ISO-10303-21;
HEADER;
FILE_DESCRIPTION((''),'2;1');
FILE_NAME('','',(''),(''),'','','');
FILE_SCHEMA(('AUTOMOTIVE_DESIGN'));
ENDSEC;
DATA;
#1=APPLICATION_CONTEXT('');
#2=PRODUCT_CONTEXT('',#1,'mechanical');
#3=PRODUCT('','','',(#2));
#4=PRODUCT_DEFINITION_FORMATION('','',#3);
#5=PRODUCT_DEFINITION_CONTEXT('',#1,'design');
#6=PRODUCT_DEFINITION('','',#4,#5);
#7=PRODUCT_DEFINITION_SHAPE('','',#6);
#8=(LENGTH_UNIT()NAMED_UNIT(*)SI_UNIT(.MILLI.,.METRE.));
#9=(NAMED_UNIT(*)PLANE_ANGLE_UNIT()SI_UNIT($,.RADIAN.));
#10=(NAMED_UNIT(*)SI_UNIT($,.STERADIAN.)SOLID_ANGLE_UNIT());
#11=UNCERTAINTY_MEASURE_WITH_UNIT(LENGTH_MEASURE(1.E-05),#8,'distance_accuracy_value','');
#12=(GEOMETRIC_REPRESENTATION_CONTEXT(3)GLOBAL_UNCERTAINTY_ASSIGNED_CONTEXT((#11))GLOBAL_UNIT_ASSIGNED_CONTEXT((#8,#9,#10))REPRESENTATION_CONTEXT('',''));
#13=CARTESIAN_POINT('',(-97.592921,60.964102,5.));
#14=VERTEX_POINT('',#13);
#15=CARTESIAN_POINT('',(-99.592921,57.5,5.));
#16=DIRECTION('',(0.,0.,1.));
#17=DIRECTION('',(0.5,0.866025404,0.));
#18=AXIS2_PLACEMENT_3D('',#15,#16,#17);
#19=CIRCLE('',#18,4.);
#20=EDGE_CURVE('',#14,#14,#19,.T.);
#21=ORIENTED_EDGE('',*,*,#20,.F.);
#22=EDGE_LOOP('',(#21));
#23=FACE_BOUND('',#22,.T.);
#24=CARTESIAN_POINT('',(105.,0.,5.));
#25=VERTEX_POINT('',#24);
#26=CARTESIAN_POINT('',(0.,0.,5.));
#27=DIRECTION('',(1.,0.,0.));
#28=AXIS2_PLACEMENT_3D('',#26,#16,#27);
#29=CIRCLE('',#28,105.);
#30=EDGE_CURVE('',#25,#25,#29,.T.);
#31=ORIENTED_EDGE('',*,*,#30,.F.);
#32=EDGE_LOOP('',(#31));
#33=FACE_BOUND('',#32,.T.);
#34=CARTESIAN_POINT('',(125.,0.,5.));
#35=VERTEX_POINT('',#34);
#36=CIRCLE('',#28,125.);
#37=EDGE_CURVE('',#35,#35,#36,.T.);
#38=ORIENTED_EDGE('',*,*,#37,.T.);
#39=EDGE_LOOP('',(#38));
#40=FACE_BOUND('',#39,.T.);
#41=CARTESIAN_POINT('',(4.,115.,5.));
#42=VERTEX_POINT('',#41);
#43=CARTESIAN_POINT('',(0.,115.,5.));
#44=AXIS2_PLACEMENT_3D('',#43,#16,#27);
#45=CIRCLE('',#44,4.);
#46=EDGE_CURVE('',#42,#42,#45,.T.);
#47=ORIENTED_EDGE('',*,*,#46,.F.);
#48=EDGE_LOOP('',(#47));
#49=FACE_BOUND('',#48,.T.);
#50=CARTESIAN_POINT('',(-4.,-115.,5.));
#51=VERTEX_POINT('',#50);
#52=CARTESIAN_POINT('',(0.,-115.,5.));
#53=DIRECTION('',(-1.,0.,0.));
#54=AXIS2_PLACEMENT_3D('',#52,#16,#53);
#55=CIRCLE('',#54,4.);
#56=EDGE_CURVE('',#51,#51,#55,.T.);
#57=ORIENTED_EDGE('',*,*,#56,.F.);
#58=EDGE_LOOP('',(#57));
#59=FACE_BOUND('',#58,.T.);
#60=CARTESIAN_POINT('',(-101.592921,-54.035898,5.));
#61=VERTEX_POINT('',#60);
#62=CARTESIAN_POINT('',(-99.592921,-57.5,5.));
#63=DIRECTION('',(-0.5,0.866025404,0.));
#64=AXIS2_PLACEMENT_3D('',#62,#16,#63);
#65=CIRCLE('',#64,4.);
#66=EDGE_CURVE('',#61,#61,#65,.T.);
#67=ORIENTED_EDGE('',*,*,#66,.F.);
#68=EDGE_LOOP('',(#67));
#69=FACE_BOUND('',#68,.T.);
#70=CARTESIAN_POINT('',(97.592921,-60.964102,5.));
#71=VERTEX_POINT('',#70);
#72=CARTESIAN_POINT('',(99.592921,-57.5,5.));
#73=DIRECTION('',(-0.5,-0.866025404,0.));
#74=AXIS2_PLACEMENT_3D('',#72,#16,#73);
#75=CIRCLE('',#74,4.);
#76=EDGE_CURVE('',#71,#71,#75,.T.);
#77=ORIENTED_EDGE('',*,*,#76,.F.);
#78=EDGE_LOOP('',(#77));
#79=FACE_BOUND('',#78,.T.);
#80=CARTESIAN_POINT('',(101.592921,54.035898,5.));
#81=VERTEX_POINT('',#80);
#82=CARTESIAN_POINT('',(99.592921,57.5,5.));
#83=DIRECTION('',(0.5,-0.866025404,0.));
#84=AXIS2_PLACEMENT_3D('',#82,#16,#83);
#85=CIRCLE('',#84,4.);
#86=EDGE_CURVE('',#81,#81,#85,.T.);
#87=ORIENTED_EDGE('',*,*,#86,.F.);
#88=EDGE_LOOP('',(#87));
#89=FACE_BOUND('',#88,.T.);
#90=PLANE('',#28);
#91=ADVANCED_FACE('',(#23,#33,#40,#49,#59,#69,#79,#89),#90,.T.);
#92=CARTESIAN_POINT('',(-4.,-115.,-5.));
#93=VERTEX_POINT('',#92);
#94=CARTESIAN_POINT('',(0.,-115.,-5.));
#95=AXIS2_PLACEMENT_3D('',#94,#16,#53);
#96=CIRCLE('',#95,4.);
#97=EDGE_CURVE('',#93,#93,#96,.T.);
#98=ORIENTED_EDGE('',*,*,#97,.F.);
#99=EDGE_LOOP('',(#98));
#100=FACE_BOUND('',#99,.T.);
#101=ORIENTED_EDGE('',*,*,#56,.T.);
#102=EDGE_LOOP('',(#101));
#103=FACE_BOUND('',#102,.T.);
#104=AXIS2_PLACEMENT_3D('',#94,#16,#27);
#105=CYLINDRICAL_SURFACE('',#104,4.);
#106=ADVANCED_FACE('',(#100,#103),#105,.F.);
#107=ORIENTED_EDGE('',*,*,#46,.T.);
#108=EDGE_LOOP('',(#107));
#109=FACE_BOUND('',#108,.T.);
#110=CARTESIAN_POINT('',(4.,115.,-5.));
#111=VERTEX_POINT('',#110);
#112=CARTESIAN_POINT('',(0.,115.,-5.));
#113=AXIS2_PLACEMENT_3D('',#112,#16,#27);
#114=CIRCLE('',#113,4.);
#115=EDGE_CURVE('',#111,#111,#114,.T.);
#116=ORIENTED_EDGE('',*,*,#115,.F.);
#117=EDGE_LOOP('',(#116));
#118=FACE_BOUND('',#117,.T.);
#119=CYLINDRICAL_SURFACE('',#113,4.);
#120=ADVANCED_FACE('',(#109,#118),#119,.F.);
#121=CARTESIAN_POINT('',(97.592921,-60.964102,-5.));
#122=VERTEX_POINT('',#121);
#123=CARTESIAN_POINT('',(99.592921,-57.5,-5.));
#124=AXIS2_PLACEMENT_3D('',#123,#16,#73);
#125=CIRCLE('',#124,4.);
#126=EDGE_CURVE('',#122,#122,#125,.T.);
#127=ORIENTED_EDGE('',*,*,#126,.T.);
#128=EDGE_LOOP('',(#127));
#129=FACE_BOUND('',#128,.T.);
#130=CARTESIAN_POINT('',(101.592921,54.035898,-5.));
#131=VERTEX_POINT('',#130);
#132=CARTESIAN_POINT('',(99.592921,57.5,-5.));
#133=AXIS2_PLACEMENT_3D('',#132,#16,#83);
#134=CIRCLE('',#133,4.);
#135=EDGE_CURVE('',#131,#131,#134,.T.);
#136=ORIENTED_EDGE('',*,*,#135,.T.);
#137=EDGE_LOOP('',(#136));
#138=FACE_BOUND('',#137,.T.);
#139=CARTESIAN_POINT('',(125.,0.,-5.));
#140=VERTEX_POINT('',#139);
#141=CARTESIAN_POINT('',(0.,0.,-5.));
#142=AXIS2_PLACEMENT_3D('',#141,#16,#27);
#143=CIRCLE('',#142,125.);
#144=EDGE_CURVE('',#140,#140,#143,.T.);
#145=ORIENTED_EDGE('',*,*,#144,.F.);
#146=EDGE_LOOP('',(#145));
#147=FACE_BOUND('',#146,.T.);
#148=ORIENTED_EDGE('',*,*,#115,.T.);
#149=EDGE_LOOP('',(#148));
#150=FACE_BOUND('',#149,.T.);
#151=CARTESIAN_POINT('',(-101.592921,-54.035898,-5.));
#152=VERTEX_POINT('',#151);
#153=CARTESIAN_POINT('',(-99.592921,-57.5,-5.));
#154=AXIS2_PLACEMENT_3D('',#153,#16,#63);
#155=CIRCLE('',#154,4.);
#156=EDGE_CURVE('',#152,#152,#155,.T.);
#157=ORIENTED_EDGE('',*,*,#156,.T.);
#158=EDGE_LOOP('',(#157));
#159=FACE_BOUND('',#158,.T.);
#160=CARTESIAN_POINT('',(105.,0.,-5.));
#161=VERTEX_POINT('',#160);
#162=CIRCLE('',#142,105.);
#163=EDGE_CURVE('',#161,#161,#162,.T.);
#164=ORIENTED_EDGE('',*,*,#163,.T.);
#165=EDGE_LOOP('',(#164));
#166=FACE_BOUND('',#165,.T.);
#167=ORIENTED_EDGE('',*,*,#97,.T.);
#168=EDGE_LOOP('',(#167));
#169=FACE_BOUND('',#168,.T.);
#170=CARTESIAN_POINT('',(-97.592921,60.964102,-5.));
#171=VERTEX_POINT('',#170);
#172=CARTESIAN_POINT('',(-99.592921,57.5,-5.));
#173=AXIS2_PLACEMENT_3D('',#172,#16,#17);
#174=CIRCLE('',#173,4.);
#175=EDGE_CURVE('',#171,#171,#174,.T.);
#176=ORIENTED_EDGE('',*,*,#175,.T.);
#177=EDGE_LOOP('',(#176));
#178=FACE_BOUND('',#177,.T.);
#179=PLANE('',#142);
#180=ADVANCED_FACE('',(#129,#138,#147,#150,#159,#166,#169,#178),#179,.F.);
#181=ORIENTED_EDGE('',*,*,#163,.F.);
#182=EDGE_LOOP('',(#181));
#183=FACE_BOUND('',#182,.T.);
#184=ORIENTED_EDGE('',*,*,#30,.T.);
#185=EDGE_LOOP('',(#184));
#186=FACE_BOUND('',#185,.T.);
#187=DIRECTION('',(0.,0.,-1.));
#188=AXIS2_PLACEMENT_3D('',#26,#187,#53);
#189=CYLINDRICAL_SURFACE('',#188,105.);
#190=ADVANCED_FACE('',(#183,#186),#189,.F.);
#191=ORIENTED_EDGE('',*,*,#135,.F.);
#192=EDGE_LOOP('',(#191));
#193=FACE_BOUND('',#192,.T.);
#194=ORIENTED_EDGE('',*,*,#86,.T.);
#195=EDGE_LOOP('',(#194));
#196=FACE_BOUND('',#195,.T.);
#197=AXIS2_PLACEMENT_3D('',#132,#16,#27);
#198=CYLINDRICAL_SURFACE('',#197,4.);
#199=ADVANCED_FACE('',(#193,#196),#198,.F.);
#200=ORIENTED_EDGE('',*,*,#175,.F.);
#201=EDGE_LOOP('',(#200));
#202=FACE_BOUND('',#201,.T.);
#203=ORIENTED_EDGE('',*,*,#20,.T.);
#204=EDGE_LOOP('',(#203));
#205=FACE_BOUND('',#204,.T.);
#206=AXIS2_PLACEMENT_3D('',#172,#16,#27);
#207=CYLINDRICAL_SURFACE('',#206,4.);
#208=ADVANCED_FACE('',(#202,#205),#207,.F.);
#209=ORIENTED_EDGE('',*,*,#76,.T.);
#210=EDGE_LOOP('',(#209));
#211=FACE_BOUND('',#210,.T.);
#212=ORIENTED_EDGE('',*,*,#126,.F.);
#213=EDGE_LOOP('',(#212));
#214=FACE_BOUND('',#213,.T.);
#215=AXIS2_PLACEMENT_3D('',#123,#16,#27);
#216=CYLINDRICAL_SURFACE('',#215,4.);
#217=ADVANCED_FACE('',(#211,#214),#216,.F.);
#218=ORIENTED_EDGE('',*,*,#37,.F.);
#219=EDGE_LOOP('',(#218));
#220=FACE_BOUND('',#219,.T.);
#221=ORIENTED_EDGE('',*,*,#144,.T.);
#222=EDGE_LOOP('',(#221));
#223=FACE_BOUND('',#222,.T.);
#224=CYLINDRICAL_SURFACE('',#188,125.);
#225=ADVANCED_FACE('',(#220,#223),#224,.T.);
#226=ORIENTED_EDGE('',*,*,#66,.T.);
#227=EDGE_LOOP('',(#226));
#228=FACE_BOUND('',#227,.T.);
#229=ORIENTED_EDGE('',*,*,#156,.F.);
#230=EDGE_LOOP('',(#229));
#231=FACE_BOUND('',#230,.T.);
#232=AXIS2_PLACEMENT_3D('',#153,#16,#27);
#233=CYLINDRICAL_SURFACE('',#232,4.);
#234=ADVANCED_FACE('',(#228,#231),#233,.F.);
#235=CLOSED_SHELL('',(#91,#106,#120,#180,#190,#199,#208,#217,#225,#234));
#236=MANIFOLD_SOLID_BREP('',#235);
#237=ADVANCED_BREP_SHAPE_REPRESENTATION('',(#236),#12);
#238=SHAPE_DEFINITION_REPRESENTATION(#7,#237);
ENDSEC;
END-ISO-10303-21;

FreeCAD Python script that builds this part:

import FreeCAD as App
import Part
import Sketcher
Q = App.Units.Quantity

doc = App.newDocument("Part")
params = doc.addObject("Spreadsheet::Sheet", "Params")
for row, (alias, value) in enumerate([
    ("sketch1_diameter", "250 mm"),
    ("sketch1_diameter2", "210 mm"),
    ("pad1_length", "10 mm"),
    ("sketch2_diameter", "8 mm"),
], start=1):
    params.set(f"A{row}", alias)
    params.set(f"B{row}", "=" + value)
    params.setAlias(f"B{row}", alias)

body = doc.addObject("PartDesign::Body", "Body")

# Sketch on XY plane
sketch1 = body.newObject("Sketcher::SketchObject", "Sketch")
sketch1.AttachmentSupport = (doc.getObject("XY_Plane"), [""])
sketch1.MapMode = "FlatFace"
sketch1.addGeometry(Part.Circle(App.Vector(0, 0, 0), App.Vector(0, 0, 1), 125), False)
sketch1.addGeometry(Part.Circle(App.Vector(0, 0, 0), App.Vector(0, 0, 1), 105), False)
sketch1.addConstraint(Sketcher.Constraint("Coincident", 0, 3, -1, 1))
sketch1.addConstraint(Sketcher.Constraint("Coincident", 1, 3, -1, 1))
sketch1.addConstraint(Sketcher.Constraint("Diameter", 0, Q("250 mm")))
sketch1.addConstraint(Sketcher.Constraint("Diameter", 1, Q("210 mm")))
sketch1.setExpression("Constraints[2]", "Params.sketch1_diameter")
sketch1.setExpression("Constraints[3]", "Params.sketch1_diameter2")
pad1 = body.newObject("PartDesign::Pad", "Pad")
pad1.Profile = sketch1
pad1.setExpression("Length", "Params.pad1_length")
pad1.Midplane = True

# Sketch on XY plane
sketch2 = body.newObject("Sketcher::SketchObject", "Sketch001")
sketch2.AttachmentSupport = (doc.getObject("XY_Plane"), [""])
sketch2.MapMode = "FlatFace"
sketch2.AttachmentOffset = App.Placement(App.Vector(0, 0, 5), App.Rotation())
sketch2.addGeometry(Part.Circle(App.Vector(0, 115, 0), App.Vector(0, 0, 1), 4), False)
sketch2.addConstraint(Sketcher.Constraint("PointOnObject", 0, 3, -2))
sketch2.addConstraint(Sketcher.Constraint("Diameter", 0, Q("8 mm")))
sketch2.addConstraint(Sketcher.Constraint("DistanceY", -1, 1, 0, 3, Q("115 mm")))
sketch2.setExpression("Constraints[1]", "Params.sketch2_diameter")
pocket1 = body.newObject("PartDesign::Pocket", "Pocket")
pocket1.Profile = sketch2
pocket1.Type = "ThroughAll"
doc.recompute()

polarpattern = body.newObject("PartDesign::PolarPattern", "PolarPattern")
polarpattern.Originals = [pocket1]
polarpattern.Axis = (doc.getObject("Z_Axis"), [""])
polarpattern.Angle = 360
polarpattern.Occurrences = 6
body.Tip = polarpattern

doc.recompute()
